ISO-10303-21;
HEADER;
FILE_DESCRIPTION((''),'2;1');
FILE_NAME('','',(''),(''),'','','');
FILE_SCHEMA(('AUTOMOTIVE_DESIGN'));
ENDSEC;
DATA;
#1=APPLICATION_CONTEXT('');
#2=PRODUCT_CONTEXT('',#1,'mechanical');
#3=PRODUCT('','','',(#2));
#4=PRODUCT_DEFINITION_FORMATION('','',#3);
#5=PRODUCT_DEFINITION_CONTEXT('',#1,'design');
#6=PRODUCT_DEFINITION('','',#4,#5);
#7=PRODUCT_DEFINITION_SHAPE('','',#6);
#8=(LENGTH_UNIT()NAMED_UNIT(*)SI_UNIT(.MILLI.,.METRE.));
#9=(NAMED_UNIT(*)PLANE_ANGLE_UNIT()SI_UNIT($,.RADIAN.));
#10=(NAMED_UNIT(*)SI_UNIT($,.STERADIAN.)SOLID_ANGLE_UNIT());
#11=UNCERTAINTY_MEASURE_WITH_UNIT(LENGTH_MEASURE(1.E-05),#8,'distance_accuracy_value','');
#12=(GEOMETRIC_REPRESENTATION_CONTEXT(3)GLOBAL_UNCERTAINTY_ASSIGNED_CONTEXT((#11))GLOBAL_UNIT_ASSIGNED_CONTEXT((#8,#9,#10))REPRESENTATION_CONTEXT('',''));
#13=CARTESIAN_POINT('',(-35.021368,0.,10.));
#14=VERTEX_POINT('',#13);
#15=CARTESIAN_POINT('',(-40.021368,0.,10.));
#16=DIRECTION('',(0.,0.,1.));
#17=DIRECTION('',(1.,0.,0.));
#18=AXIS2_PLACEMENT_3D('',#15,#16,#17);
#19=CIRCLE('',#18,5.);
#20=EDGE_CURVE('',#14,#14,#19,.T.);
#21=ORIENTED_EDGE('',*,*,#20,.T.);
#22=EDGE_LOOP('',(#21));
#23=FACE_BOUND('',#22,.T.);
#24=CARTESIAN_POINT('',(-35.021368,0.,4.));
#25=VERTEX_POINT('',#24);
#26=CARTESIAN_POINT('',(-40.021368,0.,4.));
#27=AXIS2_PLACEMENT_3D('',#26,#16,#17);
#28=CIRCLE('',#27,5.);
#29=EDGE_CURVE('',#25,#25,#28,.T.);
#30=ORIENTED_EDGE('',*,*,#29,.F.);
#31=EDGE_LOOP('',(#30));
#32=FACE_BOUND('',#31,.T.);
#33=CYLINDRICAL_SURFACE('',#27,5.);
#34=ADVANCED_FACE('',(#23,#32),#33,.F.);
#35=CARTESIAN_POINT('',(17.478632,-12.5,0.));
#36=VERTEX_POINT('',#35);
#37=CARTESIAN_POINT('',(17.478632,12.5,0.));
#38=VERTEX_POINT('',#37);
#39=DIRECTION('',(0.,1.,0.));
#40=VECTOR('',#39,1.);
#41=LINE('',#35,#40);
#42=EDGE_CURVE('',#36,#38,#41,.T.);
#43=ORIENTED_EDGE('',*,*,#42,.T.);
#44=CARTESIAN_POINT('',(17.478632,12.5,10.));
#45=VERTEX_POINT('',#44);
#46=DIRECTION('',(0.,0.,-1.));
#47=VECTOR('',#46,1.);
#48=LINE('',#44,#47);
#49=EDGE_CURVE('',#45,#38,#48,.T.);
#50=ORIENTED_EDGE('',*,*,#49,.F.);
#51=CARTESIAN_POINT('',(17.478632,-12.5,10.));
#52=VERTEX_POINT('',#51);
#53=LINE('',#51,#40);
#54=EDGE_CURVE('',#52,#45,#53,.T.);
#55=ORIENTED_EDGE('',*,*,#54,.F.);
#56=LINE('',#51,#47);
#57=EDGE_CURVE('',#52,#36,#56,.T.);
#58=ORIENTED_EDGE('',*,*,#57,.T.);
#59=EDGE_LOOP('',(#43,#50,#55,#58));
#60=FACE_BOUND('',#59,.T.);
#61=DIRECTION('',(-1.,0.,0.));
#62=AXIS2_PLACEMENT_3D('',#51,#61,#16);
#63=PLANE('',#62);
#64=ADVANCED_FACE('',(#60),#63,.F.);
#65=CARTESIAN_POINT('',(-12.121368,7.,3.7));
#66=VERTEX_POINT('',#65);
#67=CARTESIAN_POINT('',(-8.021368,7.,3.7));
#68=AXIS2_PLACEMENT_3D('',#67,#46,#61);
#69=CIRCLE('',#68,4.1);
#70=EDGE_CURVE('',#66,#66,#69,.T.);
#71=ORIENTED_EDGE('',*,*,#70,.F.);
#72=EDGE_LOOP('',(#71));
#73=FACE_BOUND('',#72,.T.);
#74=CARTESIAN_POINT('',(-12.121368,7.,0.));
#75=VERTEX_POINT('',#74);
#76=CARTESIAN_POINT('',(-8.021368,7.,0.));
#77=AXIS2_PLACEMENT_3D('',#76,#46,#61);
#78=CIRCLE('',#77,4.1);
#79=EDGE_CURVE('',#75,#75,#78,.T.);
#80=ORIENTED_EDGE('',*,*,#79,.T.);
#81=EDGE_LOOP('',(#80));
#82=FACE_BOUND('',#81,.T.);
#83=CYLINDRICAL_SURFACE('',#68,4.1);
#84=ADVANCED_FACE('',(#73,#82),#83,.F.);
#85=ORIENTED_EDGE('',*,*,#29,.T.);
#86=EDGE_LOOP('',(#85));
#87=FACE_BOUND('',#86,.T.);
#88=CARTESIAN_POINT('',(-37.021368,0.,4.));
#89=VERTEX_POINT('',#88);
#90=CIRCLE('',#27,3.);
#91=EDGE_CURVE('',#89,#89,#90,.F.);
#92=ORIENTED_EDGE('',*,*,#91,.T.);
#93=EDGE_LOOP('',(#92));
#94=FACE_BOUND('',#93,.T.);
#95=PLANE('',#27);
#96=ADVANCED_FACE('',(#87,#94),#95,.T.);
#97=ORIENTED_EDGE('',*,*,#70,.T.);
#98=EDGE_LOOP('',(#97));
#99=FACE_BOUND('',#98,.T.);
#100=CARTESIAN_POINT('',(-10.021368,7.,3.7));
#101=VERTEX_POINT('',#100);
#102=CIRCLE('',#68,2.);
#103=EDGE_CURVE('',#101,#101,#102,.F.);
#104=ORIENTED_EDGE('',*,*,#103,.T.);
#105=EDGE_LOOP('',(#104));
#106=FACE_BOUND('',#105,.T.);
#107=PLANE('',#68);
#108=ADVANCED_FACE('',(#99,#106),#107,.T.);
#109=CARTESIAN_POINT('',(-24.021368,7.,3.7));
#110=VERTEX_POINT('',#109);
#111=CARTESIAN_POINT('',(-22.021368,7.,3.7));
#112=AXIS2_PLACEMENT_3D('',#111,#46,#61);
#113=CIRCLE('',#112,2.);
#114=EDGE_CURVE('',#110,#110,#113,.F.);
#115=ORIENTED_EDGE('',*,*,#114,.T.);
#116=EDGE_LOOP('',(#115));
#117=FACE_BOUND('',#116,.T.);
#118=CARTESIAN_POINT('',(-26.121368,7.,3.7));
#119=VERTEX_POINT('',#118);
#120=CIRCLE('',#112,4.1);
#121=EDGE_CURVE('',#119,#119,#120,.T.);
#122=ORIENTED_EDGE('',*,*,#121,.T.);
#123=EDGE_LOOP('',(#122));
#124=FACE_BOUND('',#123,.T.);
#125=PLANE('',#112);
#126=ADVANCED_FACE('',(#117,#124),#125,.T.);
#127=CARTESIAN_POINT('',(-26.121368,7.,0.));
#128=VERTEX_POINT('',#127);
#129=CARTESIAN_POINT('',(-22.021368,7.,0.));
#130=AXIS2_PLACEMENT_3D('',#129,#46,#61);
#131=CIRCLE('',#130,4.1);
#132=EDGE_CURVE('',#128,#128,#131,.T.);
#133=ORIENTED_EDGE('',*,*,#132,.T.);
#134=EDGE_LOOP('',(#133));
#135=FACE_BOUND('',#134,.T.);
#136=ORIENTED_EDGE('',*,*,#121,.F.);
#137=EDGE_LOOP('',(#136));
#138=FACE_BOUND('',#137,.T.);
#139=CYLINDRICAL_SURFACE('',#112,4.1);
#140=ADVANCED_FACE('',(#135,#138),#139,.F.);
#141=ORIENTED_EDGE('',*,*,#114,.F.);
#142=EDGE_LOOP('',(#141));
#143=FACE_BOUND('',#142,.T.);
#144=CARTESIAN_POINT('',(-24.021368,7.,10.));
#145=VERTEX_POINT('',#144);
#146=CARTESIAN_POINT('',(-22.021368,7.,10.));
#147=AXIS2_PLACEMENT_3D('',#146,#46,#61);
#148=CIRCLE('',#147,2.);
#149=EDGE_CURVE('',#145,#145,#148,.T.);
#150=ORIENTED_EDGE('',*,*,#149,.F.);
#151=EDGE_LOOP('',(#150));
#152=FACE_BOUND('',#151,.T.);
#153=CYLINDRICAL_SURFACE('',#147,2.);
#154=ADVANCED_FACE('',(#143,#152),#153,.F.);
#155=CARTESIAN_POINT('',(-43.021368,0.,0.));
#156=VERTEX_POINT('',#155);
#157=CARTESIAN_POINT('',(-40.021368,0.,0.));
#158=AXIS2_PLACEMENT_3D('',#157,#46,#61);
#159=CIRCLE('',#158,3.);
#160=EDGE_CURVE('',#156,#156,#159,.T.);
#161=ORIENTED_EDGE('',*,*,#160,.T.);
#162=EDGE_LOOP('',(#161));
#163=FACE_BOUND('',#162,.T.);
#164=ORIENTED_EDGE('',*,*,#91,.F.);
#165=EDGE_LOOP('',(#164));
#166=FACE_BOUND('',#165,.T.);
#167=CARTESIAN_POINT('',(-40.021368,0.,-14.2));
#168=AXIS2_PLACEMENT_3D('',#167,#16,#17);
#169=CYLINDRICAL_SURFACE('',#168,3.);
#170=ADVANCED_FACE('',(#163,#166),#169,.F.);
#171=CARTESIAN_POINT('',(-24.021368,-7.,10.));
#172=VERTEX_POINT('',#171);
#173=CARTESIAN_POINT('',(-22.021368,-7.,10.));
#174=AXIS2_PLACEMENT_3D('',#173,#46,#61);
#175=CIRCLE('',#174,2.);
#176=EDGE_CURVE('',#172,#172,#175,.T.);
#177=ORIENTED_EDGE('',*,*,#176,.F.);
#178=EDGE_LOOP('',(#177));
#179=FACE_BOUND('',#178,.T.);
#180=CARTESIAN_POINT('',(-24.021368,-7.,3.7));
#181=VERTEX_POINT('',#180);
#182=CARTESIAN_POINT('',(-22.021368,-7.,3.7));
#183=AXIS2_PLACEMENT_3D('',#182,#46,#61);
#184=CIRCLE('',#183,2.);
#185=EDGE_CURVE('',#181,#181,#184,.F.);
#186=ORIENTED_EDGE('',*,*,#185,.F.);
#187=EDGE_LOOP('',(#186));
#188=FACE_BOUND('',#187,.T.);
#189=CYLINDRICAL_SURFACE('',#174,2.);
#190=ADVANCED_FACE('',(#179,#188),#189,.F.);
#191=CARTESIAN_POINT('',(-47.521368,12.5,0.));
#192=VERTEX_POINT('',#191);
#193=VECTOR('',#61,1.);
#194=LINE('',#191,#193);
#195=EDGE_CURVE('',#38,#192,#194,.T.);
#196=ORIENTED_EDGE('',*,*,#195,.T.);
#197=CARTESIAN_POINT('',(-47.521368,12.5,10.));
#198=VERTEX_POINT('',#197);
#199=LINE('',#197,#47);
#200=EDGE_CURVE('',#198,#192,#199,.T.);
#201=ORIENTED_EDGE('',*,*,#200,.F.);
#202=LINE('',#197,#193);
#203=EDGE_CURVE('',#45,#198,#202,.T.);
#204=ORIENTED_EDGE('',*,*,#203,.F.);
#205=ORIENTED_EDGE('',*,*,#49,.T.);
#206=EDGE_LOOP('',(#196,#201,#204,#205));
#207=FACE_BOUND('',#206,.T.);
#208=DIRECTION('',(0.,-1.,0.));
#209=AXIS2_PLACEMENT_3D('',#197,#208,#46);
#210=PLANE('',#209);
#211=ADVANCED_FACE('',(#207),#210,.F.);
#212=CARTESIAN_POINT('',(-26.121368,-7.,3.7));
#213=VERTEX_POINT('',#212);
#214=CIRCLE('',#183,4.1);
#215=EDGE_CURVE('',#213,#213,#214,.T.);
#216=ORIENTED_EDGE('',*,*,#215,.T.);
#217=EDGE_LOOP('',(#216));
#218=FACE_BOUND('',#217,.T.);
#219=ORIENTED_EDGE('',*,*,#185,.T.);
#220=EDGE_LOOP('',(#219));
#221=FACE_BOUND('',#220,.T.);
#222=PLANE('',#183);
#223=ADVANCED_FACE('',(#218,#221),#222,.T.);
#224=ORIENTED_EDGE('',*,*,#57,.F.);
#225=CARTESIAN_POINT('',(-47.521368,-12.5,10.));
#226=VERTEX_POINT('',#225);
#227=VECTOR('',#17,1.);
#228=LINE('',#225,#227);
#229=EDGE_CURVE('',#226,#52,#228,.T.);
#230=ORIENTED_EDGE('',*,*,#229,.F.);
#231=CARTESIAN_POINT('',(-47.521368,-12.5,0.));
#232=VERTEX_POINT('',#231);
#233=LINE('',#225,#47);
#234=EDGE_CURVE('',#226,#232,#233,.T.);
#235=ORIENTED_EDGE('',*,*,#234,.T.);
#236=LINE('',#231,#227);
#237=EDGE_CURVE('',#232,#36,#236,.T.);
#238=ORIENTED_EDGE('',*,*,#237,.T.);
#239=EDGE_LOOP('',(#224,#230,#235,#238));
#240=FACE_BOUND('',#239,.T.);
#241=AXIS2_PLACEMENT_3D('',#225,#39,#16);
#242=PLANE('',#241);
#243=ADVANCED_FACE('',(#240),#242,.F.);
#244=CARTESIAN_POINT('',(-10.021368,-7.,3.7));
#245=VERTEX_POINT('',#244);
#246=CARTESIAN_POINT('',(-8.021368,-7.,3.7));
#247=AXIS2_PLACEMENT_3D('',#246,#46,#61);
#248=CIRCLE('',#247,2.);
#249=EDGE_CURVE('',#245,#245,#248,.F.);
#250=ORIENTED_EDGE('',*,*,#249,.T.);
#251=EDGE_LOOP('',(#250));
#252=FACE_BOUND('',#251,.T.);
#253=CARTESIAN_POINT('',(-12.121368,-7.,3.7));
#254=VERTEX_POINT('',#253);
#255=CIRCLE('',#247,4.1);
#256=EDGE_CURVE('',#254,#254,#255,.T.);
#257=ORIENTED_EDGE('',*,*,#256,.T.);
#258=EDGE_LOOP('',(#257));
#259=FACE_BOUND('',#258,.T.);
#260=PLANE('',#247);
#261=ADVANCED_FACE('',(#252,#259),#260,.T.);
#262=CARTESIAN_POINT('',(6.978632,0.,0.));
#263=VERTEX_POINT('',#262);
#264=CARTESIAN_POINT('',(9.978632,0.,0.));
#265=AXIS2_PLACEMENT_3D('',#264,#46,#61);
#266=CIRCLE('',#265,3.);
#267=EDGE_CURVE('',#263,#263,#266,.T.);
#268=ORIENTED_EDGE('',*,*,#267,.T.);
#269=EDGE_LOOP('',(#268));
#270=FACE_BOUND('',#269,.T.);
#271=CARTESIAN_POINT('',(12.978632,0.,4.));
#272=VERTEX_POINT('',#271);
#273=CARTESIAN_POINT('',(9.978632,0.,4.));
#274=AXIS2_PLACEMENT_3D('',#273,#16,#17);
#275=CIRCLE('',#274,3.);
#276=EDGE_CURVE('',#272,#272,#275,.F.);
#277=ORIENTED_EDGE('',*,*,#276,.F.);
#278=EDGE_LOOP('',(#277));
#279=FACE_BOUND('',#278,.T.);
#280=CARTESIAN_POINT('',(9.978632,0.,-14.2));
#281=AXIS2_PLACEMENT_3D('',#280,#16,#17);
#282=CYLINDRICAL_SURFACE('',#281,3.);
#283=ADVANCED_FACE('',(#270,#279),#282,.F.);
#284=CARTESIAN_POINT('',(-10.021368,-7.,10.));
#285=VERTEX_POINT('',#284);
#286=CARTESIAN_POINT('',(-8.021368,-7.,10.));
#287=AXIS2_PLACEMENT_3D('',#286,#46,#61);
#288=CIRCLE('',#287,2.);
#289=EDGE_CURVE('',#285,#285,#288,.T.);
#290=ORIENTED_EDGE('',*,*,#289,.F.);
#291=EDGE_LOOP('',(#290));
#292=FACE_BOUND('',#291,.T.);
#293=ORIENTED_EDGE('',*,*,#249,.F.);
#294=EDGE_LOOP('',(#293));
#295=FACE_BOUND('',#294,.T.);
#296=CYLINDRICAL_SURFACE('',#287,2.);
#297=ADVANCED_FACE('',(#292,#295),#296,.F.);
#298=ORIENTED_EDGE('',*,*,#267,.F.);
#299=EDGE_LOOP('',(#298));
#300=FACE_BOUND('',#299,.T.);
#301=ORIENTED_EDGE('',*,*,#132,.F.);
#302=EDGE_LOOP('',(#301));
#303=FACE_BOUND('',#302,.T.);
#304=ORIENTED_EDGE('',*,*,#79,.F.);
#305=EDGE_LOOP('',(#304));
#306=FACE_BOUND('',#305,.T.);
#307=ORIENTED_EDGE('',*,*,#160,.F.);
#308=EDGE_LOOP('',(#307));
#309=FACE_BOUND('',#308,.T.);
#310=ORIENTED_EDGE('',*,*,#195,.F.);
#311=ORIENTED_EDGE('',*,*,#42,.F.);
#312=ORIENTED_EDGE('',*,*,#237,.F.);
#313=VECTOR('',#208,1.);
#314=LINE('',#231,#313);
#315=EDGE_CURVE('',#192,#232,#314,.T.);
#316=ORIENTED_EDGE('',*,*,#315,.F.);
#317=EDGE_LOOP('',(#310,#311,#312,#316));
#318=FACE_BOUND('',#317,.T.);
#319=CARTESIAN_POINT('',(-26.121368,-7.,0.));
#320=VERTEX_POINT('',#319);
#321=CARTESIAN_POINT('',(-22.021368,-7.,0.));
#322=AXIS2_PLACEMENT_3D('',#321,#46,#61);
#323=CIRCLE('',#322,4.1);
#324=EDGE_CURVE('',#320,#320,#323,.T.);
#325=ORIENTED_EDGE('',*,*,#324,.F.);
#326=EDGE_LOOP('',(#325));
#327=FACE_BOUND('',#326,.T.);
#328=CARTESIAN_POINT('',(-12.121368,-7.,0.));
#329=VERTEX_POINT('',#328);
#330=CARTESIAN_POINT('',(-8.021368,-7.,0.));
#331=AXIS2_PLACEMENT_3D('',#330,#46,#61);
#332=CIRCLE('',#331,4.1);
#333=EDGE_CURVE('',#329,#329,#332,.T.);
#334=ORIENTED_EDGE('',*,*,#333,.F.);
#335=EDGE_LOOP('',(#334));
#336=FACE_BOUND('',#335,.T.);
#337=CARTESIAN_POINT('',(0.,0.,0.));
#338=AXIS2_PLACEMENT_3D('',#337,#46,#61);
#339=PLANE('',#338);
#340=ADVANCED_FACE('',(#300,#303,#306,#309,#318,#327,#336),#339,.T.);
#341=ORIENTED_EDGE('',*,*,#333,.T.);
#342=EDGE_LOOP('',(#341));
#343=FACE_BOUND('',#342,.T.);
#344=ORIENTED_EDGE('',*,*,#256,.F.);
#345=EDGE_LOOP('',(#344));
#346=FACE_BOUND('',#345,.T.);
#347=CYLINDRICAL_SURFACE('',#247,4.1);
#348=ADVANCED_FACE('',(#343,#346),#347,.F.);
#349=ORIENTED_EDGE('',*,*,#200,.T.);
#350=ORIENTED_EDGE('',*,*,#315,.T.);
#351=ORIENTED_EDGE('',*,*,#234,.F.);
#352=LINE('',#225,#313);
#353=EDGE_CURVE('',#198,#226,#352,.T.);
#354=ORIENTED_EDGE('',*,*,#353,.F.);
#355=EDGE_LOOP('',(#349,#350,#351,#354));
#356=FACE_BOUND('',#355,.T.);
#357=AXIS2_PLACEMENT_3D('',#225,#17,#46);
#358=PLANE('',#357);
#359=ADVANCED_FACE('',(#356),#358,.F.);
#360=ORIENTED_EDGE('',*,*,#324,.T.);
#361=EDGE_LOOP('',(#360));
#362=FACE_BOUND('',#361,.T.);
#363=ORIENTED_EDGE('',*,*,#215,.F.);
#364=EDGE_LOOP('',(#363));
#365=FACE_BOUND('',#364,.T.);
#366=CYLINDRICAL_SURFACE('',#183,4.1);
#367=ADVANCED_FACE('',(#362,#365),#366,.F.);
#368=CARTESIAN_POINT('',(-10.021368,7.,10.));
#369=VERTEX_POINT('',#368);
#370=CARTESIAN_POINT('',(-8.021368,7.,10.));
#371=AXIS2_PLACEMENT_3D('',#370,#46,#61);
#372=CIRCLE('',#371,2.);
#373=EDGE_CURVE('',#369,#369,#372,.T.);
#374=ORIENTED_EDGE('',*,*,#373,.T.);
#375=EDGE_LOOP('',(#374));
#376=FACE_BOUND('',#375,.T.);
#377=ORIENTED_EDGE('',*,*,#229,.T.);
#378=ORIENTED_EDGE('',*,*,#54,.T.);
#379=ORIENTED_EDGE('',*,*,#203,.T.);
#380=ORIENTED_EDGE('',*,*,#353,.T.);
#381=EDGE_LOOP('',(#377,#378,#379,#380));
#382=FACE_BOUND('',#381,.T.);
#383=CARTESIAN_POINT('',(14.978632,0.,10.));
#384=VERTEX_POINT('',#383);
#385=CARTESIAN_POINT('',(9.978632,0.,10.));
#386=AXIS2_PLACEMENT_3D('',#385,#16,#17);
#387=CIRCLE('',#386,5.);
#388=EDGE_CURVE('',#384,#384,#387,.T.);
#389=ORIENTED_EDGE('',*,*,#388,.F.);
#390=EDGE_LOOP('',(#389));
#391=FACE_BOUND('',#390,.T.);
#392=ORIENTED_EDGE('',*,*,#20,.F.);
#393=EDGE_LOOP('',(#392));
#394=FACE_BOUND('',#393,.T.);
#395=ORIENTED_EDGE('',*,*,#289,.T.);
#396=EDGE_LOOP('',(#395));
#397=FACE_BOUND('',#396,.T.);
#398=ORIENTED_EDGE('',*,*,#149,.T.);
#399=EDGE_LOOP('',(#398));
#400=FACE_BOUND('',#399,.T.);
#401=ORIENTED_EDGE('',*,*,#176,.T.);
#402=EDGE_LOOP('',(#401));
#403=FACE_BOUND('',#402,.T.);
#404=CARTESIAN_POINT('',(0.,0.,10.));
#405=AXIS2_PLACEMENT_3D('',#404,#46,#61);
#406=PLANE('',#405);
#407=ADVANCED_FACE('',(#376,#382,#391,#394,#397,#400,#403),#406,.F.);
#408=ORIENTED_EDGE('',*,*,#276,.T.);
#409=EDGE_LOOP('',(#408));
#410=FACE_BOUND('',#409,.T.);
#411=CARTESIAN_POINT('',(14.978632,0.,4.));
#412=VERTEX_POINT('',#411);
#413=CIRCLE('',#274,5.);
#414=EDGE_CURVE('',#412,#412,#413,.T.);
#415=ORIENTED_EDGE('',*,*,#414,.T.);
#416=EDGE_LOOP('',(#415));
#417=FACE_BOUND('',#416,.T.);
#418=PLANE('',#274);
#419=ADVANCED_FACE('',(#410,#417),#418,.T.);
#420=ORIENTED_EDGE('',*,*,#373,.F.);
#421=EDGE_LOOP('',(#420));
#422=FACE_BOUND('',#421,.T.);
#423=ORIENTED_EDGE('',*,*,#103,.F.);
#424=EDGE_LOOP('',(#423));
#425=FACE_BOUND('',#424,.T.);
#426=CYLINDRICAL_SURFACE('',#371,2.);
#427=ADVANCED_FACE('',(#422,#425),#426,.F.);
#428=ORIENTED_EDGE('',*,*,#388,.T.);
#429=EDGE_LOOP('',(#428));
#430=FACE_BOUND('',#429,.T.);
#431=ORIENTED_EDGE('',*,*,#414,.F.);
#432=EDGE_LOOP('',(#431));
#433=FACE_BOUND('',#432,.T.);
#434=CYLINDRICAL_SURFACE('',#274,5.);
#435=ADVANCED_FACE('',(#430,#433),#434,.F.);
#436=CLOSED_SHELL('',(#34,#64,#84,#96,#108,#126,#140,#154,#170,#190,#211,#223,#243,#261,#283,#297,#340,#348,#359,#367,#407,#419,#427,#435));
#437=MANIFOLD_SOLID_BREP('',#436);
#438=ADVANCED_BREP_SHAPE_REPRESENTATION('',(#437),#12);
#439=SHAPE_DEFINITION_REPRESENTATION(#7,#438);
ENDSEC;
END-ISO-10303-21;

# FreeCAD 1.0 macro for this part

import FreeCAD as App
import Part
import Sketcher

V = App.Vector
Q = App.Units.Quantity


def add_polygon(sketch, points):
    """Adds a closed chain of lines whose ends are joined by coincident constraints."""
    first, n = sketch.GeometryCount, len(points)
    for a, b in zip(points, points[1:] + points[:1]):
        sketch.addGeometry(Part.LineSegment(App.Vector(*a, 0), App.Vector(*b, 0)), False)
    for i in range(n):
        sketch.addConstraint(Sketcher.Constraint("Coincident", first + i, 2, first + (i + 1) % n, 1))

doc = App.newDocument("Part")
body = doc.addObject("PartDesign::Body", "Body")

# Sketch on XY plane
sketch1 = body.newObject("Sketcher::SketchObject", "Sketch")
sketch1.AttachmentSupport = (doc.getObject("XY_Plane"), [""])
sketch1.MapMode = "FlatFace"
add_polygon(sketch1, [(-48, 12), (-48, -12), (17, -12), (17, 12)])  # lines 0-3
sketch1.addConstraint(Sketcher.Constraint("Vertical", 0))
sketch1.addConstraint(Sketcher.Constraint("Horizontal", 1))
sketch1.addConstraint(Sketcher.Constraint("Vertical", 2))
sketch1.addConstraint(Sketcher.Constraint("Horizontal", 3))
sketch1.addConstraint(Sketcher.Constraint("DistanceX", 1, 1, 1, 2, Q("65 mm")))
sketch1.addConstraint(Sketcher.Constraint("DistanceY", 0, 2, 0, 1, Q("25 mm")))
sketch1.addConstraint(Sketcher.Constraint("DistanceY", 0, 2, -1, 1, Q("12.5 mm")))
sketch1.addConstraint(Sketcher.Constraint("DistanceX", 0, 2, -1, 1, Q("47.521368 mm")))
pad1 = body.newObject("PartDesign::Pad", "Pad")
pad1.Profile = sketch1
pad1.Length = 10

# Sketch on XY plane
sketch2 = body.newObject("Sketcher::SketchObject", "Sketch001")
sketch2.AttachmentSupport = (doc.getObject("XY_Plane"), [""])
sketch2.MapMode = "FlatFace"
sketch2.addGeometry(Part.Circle(V(-22, -7, 0), V(0, 0, 1), 2), False)
sketch2.addGeometry(Part.Circle(V(-8, -7, 0), V(0, 0, 1), 2), False)
sketch2.addGeometry(Part.Circle(V(-8, 7, 0), V(0, 0, 1), 2), False)
sketch2.addGeometry(Part.Circle(V(-22, 7, 0), V(0, 0, 1), 2), False)
sketch2.addConstraint(Sketcher.Constraint("Equal", 0, 1))
sketch2.addConstraint(Sketcher.Constraint("Equal", 1, 2))
sketch2.addConstraint(Sketcher.Constraint("Equal", 2, 3))
sketch2.addConstraint(Sketcher.Constraint("Symmetric", 1, 3, 2, 3, -1))
sketch2.addConstraint(Sketcher.Constraint("Symmetric", 0, 3, 3, 3, -1))
sketch2.addConstraint(Sketcher.Constraint("Horizontal", 0, 3, 1, 3))
sketch2.addConstraint(Sketcher.Constraint("Diameter", 0, Q("4 mm")))
sketch2.addConstraint(Sketcher.Constraint("DistanceY", 0, 3, -1, 1, Q("7 mm")))
sketch2.addConstraint(Sketcher.Constraint("DistanceX", 0, 3, 1, 3, Q("14 mm")))
sketch2.addConstraint(Sketcher.Constraint("DistanceX", 0, 3, -1, 1, Q("22.021368 mm")))
pocket1 = body.newObject("PartDesign::Pocket", "Pocket")
pocket1.Profile = sketch2
pocket1.Length = 10
pocket1.Reversed = True

# Sketch on XY plane
sketch3 = body.newObject("Sketcher::SketchObject", "Sketch002")
sketch3.AttachmentSupport = (doc.getObject("XY_Plane"), [""])
sketch3.MapMode = "FlatFace"
sketch3.addGeometry(Part.Circle(V(-22, -7, 0), V(0, 0, 1), 4.1), False)
sketch3.addGeometry(Part.Circle(V(-8, -7, 0), V(0, 0, 1), 4.1), False)
sketch3.addGeometry(Part.Circle(V(-8, 7, 0), V(0, 0, 1), 4.1), False)
sketch3.addGeometry(Part.Circle(V(-22, 7, 0), V(0, 0, 1), 4.1), False)
sketch3.addConstraint(Sketcher.Constraint("Equal", 0, 1))
sketch3.addConstraint(Sketcher.Constraint("Equal", 1, 2))
sketch3.addConstraint(Sketcher.Constraint("Equal", 2, 3))
sketch3.addConstraint(Sketcher.Constraint("Symmetric", 1, 3, 2, 3, -1))
sketch3.addConstraint(Sketcher.Constraint("Symmetric", 0, 3, 3, 3, -1))
sketch3.addConstraint(Sketcher.Constraint("Horizontal", 0, 3, 1, 3))
sketch3.addConstraint(Sketcher.Constraint("Diameter", 0, Q("8.2 mm")))
sketch3.addConstraint(Sketcher.Constraint("DistanceY", 0, 3, -1, 1, Q("7 mm")))
sketch3.addConstraint(Sketcher.Constraint("DistanceX", 0, 3, 1, 3, Q("14 mm")))
sketch3.addConstraint(Sketcher.Constraint("DistanceX", 0, 3, -1, 1, Q("22.021368 mm")))
pocket2 = body.newObject("PartDesign::Pocket", "Pocket001")
pocket2.Profile = sketch3
pocket2.Length = 3.7
pocket2.Reversed = True

# Sketch on XY plane
sketch4 = body.newObject("Sketcher::SketchObject", "Sketch003")
sketch4.AttachmentSupport = (doc.getObject("XY_Plane"), [""])
sketch4.MapMode = "FlatFace"
sketch4.AttachmentOffset = App.Placement(V(0, 0, 10), App.Rotation())
sketch4.addGeometry(Part.Circle(V(-40, 0, 0), V(0, 0, 1), 3), False)
sketch4.addGeometry(Part.Circle(V(10, 0, 0), V(0, 0, 1), 3), False)
sketch4.addConstraint(Sketcher.Constraint("Equal", 0, 1))
sketch4.addConstraint(Sketcher.Constraint("PointOnObject", 0, 3, -1))
sketch4.addConstraint(Sketcher.Constraint("PointOnObject", 1, 3, -1))
sketch4.addConstraint(Sketcher.Constraint("Diameter", 0, Q("6 mm")))
sketch4.addConstraint(Sketcher.Constraint("DistanceX", 0, 3, 1, 3, Q("50 mm")))
sketch4.addConstraint(Sketcher.Constraint("DistanceX", 0, 3, -1, 1, Q("40.021368 mm")))
pocket3 = body.newObject("PartDesign::Pocket", "Pocket002")
pocket3.Profile = sketch4
pocket3.Length = 24.2

# Sketch on XY plane
sketch5 = body.newObject("Sketcher::SketchObject", "Sketch004")
sketch5.AttachmentSupport = (doc.getObject("XY_Plane"), [""])
sketch5.MapMode = "FlatFace"
sketch5.AttachmentOffset = App.Placement(V(0, 0, 10), App.Rotation())
sketch5.addGeometry(Part.Circle(V(-40, 0, 0), V(0, 0, 1), 5), False)
sketch5.addGeometry(Part.Circle(V(10, 0, 0), V(0, 0, 1), 5), False)
sketch5.addConstraint(Sketcher.Constraint("Equal", 0, 1))
sketch5.addConstraint(Sketcher.Constraint("PointOnObject", 0, 3, -1))
sketch5.addConstraint(Sketcher.Constraint("PointOnObject", 1, 3, -1))
sketch5.addConstraint(Sketcher.Constraint("Diameter", 0, Q("10 mm")))
sketch5.addConstraint(Sketcher.Constraint("DistanceX", 0, 3, 1, 3, Q("50 mm")))
sketch5.addConstraint(Sketcher.Constraint("DistanceX", 0, 3, -1, 1, Q("40.021368 mm")))
pocket4 = body.newObject("PartDesign::Pocket", "Pocket003")
pocket4.Profile = sketch5
pocket4.Length = 6

doc.recompute()
